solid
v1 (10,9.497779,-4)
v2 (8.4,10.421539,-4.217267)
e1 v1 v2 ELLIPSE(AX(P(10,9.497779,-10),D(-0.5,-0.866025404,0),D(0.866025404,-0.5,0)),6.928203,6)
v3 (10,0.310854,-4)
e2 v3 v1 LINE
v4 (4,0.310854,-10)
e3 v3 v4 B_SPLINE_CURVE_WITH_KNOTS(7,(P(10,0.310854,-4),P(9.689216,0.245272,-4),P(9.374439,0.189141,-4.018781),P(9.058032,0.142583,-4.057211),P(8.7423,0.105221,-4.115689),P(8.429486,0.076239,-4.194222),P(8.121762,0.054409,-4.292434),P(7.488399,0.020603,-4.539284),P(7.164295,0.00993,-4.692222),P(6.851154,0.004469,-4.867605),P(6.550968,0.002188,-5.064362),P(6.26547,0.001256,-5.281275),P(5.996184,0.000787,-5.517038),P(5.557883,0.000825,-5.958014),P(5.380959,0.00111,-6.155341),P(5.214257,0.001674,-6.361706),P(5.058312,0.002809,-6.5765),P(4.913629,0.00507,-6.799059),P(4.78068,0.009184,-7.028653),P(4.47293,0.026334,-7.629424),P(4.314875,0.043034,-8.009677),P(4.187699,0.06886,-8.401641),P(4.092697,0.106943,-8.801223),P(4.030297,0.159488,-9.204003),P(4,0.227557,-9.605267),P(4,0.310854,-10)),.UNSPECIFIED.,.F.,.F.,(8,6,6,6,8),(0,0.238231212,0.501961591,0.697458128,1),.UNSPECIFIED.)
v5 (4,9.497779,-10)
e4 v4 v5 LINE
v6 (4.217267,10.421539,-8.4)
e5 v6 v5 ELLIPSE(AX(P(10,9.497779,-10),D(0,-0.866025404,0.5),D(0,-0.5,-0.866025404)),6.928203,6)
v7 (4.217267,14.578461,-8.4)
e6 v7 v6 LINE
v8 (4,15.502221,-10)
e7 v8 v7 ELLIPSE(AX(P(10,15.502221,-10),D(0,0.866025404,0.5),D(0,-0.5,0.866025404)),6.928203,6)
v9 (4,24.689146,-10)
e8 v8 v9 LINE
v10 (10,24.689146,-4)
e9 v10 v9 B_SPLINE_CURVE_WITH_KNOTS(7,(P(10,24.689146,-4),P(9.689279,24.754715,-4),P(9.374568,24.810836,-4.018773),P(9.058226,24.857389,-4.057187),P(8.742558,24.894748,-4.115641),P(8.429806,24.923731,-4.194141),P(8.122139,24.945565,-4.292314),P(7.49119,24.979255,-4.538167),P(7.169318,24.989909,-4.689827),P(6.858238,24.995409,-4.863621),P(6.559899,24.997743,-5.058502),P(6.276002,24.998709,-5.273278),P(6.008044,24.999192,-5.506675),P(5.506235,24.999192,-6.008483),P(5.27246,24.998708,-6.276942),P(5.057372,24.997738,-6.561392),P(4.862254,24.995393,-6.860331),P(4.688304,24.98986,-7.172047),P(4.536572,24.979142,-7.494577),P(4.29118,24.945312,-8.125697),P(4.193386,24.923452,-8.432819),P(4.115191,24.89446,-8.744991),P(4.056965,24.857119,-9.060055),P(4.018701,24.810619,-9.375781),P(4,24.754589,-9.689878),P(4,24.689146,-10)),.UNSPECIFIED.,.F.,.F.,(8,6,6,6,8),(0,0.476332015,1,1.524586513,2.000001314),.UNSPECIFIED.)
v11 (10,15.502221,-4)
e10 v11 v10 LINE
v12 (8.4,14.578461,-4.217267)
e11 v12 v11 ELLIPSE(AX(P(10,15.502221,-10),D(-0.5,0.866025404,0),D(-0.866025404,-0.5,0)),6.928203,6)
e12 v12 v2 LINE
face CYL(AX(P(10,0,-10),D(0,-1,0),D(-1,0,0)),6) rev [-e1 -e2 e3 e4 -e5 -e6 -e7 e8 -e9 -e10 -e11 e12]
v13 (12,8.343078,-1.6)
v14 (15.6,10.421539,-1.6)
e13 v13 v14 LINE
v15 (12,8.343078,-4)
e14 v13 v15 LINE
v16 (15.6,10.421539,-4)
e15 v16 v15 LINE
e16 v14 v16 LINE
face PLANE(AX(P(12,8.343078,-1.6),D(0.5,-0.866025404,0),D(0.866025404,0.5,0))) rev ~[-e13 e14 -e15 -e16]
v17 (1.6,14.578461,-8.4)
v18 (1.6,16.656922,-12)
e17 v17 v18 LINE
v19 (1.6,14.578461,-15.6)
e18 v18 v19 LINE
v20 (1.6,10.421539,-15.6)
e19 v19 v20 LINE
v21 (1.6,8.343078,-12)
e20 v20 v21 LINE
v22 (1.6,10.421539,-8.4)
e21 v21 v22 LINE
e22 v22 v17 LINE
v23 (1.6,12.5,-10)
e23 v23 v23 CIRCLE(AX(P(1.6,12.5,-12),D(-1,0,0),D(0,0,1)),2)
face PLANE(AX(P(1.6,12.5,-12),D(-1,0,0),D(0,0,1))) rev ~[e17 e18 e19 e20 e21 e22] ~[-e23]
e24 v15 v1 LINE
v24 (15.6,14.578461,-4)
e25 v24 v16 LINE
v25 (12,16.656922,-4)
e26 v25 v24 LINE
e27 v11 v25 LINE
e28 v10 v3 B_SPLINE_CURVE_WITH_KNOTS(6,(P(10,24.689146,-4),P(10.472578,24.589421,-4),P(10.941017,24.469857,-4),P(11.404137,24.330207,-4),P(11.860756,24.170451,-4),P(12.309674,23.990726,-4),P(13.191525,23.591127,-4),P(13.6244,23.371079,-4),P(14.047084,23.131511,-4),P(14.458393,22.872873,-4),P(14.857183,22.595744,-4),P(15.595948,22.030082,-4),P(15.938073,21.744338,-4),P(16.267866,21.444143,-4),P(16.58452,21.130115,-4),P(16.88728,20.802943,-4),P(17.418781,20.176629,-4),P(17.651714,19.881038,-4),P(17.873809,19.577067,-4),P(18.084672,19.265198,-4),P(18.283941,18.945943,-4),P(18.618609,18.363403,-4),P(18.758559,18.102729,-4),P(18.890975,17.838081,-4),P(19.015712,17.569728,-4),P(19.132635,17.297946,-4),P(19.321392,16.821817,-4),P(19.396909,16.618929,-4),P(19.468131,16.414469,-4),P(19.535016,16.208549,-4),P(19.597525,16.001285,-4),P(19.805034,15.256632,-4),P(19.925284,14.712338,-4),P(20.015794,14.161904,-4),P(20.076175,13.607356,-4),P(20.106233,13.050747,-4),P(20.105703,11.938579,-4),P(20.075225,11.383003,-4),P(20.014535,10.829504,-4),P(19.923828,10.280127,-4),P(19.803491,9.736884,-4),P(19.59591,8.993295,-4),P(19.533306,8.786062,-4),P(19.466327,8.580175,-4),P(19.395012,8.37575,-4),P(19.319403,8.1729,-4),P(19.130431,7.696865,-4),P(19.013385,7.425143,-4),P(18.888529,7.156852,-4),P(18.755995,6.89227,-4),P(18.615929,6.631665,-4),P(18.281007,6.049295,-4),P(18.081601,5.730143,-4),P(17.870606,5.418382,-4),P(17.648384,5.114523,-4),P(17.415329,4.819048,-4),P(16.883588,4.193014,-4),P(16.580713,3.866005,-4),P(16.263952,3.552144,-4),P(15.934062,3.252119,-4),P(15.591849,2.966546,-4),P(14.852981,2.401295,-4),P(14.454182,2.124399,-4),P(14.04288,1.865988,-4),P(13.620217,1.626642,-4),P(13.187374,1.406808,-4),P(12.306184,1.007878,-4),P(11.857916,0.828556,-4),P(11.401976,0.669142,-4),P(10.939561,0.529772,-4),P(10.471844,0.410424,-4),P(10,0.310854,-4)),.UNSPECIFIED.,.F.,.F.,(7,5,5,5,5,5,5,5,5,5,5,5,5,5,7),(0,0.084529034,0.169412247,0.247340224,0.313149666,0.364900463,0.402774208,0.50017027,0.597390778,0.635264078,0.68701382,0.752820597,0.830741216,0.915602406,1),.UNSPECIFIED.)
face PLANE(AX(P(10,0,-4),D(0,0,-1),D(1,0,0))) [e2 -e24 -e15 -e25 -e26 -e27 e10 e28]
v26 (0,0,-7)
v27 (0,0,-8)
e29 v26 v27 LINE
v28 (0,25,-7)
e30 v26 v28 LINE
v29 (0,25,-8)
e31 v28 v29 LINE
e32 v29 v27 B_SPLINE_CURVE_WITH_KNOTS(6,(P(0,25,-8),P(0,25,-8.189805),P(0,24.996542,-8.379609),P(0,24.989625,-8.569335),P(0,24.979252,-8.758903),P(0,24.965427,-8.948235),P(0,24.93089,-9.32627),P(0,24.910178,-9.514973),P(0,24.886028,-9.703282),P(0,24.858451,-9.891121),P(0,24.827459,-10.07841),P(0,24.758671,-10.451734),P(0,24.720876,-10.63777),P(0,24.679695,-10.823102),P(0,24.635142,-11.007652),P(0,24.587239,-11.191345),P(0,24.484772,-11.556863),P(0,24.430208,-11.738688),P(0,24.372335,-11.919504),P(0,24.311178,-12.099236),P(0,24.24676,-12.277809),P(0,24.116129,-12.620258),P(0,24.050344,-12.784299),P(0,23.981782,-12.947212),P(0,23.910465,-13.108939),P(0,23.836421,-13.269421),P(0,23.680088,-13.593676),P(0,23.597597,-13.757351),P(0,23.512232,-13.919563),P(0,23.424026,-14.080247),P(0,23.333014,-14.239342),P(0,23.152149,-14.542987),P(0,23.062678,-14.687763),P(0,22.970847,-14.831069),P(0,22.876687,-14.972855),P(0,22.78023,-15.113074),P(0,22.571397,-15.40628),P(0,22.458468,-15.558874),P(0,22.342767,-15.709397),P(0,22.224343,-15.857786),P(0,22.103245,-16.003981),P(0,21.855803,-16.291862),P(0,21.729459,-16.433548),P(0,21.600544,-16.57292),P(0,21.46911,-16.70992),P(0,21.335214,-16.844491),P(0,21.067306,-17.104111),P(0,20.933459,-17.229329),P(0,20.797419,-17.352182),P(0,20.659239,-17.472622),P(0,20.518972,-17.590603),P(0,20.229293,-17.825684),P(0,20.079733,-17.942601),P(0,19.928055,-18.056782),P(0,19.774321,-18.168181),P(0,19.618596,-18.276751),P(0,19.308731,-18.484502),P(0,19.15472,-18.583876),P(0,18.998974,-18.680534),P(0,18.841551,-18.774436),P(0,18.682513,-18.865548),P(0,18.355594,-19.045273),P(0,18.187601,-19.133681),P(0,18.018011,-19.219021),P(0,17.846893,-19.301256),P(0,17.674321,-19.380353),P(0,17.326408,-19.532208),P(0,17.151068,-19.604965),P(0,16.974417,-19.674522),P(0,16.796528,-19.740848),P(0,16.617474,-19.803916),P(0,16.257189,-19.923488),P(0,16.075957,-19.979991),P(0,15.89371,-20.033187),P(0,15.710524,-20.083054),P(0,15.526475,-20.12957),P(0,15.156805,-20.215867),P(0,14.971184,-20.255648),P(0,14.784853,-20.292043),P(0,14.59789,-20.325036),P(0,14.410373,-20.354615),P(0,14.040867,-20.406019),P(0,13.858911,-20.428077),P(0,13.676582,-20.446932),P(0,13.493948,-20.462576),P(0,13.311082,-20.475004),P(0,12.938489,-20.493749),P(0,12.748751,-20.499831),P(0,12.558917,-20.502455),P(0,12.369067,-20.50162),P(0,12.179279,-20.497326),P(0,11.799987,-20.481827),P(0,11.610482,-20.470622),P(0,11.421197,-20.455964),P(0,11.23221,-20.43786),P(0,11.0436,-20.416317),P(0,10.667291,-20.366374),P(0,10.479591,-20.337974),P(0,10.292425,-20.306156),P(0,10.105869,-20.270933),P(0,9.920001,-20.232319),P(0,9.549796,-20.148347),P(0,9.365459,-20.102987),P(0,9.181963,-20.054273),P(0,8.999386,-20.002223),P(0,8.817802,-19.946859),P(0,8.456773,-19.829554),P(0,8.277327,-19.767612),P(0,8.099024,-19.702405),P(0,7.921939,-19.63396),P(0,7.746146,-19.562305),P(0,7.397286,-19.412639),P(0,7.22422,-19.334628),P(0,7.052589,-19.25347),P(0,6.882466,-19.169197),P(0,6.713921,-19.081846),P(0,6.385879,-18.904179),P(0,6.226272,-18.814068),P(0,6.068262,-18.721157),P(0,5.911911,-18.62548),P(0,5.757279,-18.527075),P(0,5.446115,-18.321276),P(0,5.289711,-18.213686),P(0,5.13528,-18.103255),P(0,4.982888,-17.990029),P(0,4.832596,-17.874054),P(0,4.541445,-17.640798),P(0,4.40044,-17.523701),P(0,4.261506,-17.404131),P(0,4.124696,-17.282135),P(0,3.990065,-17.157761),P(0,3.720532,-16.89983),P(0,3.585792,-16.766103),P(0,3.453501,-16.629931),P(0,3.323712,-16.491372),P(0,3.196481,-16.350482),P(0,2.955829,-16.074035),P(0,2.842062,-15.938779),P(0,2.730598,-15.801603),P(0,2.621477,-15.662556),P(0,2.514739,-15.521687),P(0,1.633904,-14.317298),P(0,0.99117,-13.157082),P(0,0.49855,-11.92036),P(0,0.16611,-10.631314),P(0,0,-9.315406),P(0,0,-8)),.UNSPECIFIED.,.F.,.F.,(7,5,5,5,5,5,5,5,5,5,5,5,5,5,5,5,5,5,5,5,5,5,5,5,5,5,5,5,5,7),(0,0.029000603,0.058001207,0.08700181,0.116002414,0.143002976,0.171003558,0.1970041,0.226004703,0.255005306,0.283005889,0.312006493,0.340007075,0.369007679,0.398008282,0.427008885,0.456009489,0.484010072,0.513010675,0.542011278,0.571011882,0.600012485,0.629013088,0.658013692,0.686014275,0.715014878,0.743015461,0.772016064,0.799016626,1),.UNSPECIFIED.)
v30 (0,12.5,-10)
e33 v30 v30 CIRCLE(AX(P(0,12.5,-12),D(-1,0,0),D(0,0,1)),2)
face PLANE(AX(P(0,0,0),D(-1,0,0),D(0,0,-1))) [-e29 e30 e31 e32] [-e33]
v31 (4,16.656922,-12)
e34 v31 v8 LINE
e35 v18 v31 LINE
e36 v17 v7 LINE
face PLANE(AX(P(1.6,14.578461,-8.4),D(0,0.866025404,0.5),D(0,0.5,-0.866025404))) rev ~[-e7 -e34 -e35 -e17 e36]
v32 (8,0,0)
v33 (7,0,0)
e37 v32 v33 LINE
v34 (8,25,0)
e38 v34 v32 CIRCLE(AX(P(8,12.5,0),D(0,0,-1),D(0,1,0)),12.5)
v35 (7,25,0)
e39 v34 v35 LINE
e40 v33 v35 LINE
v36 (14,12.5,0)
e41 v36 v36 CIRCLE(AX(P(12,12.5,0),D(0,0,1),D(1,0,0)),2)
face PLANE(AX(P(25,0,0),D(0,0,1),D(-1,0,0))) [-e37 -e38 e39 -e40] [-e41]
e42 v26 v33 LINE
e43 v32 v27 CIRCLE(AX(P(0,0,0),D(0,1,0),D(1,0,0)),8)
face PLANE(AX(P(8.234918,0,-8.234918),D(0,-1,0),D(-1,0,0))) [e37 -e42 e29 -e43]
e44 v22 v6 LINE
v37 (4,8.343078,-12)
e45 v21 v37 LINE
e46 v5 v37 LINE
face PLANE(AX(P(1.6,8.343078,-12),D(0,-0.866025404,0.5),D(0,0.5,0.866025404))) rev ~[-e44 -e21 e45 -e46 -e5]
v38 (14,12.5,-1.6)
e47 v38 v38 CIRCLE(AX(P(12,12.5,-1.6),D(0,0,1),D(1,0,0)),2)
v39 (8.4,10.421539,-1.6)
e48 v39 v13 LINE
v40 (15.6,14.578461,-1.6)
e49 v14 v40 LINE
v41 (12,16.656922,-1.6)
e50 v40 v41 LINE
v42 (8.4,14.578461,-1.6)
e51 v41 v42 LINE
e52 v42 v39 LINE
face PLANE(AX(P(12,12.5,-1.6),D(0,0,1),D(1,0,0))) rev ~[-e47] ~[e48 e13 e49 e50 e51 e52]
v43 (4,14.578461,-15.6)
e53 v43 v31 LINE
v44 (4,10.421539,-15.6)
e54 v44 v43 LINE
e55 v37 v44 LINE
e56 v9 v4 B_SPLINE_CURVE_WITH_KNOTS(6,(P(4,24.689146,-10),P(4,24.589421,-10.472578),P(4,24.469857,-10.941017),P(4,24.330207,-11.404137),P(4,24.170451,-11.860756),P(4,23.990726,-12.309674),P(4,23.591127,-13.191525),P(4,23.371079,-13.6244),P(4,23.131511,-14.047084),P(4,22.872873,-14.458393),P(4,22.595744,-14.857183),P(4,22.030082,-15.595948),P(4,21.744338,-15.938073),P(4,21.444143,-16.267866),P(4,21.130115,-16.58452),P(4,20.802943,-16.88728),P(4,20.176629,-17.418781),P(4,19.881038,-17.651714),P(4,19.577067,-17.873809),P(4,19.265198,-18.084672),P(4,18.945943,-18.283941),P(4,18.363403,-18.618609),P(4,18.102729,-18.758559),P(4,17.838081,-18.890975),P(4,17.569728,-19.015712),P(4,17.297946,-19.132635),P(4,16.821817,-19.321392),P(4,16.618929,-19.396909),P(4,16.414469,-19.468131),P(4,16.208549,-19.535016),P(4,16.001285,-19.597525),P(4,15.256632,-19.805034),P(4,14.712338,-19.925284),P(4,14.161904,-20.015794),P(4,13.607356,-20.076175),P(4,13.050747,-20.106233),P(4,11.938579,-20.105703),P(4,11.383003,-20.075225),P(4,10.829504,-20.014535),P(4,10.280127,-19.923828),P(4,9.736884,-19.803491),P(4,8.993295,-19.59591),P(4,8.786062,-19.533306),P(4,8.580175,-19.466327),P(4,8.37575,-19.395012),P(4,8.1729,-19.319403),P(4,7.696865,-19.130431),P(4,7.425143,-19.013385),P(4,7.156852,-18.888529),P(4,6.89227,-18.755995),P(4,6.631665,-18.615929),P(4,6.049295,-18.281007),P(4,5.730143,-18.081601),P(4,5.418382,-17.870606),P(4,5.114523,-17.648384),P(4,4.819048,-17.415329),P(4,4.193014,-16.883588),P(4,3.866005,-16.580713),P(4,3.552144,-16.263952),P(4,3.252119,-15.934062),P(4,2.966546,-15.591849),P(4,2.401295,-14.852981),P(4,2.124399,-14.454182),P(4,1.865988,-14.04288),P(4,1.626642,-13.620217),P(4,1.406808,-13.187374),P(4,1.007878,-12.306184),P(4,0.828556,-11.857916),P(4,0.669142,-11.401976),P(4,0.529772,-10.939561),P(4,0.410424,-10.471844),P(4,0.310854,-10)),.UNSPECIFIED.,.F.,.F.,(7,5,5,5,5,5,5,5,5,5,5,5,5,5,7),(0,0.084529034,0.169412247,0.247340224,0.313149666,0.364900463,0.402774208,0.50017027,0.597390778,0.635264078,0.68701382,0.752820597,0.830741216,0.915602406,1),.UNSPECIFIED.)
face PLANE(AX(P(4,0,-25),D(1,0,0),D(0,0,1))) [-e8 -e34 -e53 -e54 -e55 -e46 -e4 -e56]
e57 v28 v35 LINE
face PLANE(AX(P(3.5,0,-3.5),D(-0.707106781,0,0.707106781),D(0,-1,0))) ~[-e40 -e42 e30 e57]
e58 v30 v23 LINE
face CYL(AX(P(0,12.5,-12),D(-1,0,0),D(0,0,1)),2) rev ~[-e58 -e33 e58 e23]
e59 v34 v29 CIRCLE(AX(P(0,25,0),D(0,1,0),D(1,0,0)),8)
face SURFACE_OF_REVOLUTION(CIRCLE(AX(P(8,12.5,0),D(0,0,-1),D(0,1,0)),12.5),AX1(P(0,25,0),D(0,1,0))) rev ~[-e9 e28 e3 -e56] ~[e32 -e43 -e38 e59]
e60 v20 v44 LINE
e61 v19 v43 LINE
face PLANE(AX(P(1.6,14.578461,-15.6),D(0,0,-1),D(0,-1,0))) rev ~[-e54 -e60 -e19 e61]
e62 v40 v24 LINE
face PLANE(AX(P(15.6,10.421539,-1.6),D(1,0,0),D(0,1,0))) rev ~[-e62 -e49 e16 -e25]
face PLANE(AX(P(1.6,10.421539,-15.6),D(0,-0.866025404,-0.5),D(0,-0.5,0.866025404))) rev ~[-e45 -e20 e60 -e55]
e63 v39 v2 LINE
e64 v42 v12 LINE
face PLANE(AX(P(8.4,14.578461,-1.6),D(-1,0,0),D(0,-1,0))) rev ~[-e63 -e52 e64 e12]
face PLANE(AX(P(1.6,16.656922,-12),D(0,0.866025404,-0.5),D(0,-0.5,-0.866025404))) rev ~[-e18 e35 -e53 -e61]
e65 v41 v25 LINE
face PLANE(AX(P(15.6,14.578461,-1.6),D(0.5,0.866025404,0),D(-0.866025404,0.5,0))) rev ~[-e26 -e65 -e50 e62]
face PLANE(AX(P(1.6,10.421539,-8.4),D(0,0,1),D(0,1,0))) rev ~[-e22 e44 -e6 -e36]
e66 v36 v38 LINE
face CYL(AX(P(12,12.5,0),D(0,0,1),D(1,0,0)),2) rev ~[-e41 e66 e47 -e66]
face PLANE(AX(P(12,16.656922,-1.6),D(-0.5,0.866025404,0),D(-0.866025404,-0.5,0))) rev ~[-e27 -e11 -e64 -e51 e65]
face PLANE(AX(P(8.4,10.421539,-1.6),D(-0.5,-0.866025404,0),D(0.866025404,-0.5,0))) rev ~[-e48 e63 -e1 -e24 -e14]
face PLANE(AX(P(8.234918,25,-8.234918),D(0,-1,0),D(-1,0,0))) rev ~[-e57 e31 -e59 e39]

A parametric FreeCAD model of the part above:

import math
import FreeCAD as App
import Part
import Sketcher
from FreeCAD import Vector
Q = App.Units.Quantity


def edges_at(feature, points):
    """Names of the edges that pass closest to the given points."""
    edges = feature.Shape.Edges
    near = lambda p: min(range(len(edges)), key=lambda i: edges[i].distToShape(Part.Vertex(*p))[0])
    return sorted({f"Edge{near(p) + 1}" for p in points})


def add_polygon(sketch, points):
    """Adds a closed chain of lines whose ends are joined by coincident constraints."""
    first, n = sketch.GeometryCount, len(points)
    for a, b in zip(points, points[1:] + points[:1]):
        sketch.addGeometry(Part.LineSegment(App.Vector(*a, 0), App.Vector(*b, 0)), False)
    for i in range(n):
        sketch.addConstraint(Sketcher.Constraint("Coincident", first + i, 2, first + (i + 1) % n, 1))

doc = App.newDocument("Part")
params = doc.addObject("Spreadsheet::Sheet", "Params")
for row, (alias, value) in enumerate([
    ("sketch1_radius", "6 mm"),
    ("sketch1_width", "25 mm"),
    ("sketch1_width2", "15 mm"),
    ("pad1_length", "25 mm"),
    ("sketch2_radius", "12.5 mm"),
    ("sketch2_width", "8 mm"),
    ("groove_angle", "360 deg"),
    ("sketch3_diameter", "4 mm"),
    ("sketch4_diameter", "4 mm"),
    ("chamfer_size", "7 mm"),
], start=1):
    params.set(f"A{row}", alias)
    params.set(f"B{row}", "=" + value)
    params.setAlias(f"B{row}", alias)

body = doc.addObject("PartDesign::Body", "Body")

sketch1 = body.newObject("Sketcher::SketchObject", "Sketch")
sketch1.AttachmentSupport = (doc.getObject("XZ_Plane"), [""])
sketch1.MapMode = "FlatFace"
sketch1.addGeometry([
    Part.LineSegment(Vector(0, -25, 0), Vector(0, 0, 0)),
    Part.LineSegment(Vector(0, 0, 0), Vector(25, 0, 0)),
    Part.LineSegment(Vector(25, 0, 0), Vector(25, -4, 0)),
    Part.LineSegment(Vector(25, -4, 0), Vector(10, -4, 0)),
    Part.ArcOfCircle(Part.Circle(Vector(10, -10, 0), Vector(0, 0, 1), 6), math.radians(90), math.radians(180)),
    Part.LineSegment(Vector(4, -10, 0), Vector(4, -25, 0)),
    Part.LineSegment(Vector(4, -25, 0), Vector(0, -25, 0)),
], False)
sketch1.addConstraint([
    Sketcher.Constraint("Coincident", 0, 2, 1, 1),
    Sketcher.Constraint("Coincident", 1, 2, 2, 1),
    Sketcher.Constraint("Coincident", 2, 2, 3, 1),
    Sketcher.Constraint("Tangent", 3, 2, 4, 1),
    Sketcher.Constraint("Tangent", 4, 2, 5, 1),
    Sketcher.Constraint("Coincident", 5, 2, 6, 1),
    Sketcher.Constraint("Coincident", 6, 2, 0, 1),
    Sketcher.Constraint("Vertical", 0),
    Sketcher.Constraint("Horizontal", 1),
    Sketcher.Constraint("Vertical", 2),
    Sketcher.Constraint("Horizontal", 3),
    Sketcher.Constraint("Vertical", 5),
    Sketcher.Constraint("Horizontal", 6),
    Sketcher.Constraint("Coincident", 0, 2, -1, 1),
    Sketcher.Constraint("Equal", 1, 0),
    Sketcher.Constraint("Equal", 6, 2),
    Sketcher.Constraint("Radius", 4, 6.0),
    Sketcher.Constraint("DistanceX", 1, 1, 1, 2, 25.0),
    Sketcher.Constraint("DistanceX", 3, 2, 3, 1, 15.0),
])
sketch1.setExpression("Constraints[16]", "Params.sketch1_radius")
sketch1.setExpression("Constraints[17]", "Params.sketch1_width")
sketch1.setExpression("Constraints[18]", "Params.sketch1_width2")
pad1 = body.newObject("PartDesign::Pad", "Pad")
pad1.Profile = sketch1
pad1.setExpression("Length", "Params.pad1_length")
pad1.Reversed = True

sketch2 = body.newObject("Sketcher::SketchObject", "Sketch001")
sketch2.AttachmentSupport = (doc.getObject("XY_Plane"), [""])
sketch2.MapMode = "FlatFace"
sketch2.addGeometry([
    Part.LineSegment(Vector(8, 0, 0), Vector(0, 0, 0)),
    Part.LineSegment(Vector(0, 0, 0), Vector(0, -0.947269, 0)),
    Part.LineSegment(Vector(0, -0.947269, 0), Vector(27.823952, -0.947269, 0)),
    Part.LineSegment(Vector(27.823952, -0.947269, 0), Vector(27.823952, 28.581077, 0)),
    Part.LineSegment(Vector(27.823952, 28.581077, 0), Vector(0, 28.581077, 0)),
    Part.LineSegment(Vector(0, 28.581077, 0), Vector(0, 25, 0)),
    Part.LineSegment(Vector(0, 25, 0), Vector(8, 25, 0)),
    Part.ArcOfCircle(Part.Circle(Vector(8, 12.5, 0), Vector(0, 0, 1), 12.5), math.radians(-90), math.radians(90)),
], False)
sketch2.addConstraint([
    Sketcher.Constraint("Coincident", 0, 2, 1, 1),
    Sketcher.Constraint("Coincident", 1, 2, 2, 1),
    Sketcher.Constraint("Coincident", 2, 2, 3, 1),
    Sketcher.Constraint("Coincident", 3, 2, 4, 1),
    Sketcher.Constraint("Coincident", 4, 2, 5, 1),
    Sketcher.Constraint("Coincident", 5, 2, 6, 1),
    Sketcher.Constraint("Tangent", 6, 2, 7, 2),
    Sketcher.Constraint("Tangent", 7, 1, 0, 1),
    Sketcher.Constraint("Horizontal", 0),
    Sketcher.Constraint("Vertical", 1),
    Sketcher.Constraint("Horizontal", 2),
    Sketcher.Constraint("Vertical", 3),
    Sketcher.Constraint("Horizontal", 4),
    Sketcher.Constraint("Vertical", 5),
    Sketcher.Constraint("Horizontal", 6),
    Sketcher.Constraint("Coincident", 0, 2, -1, 1),
    Sketcher.Constraint("PointOnObject", 4, 2, -2),
    Sketcher.Constraint("Radius", 7, 12.5),
    Sketcher.Constraint("DistanceX", 0, 2, 0, 1, 8.0),
    Sketcher.Constraint("DistanceY", 1, 2, 1, 1, 0.947269),
    Sketcher.Constraint("DistanceX", 2, 1, 2, 2, 27.823952),
    Sketcher.Constraint("DistanceY", 3, 1, 3, 2, 29.528347),
])
sketch2.setExpression("Constraints[17]", "Params.sketch2_radius")
sketch2.setExpression("Constraints[18]", "Params.sketch2_width")
groove = body.newObject("PartDesign::Groove", "Groove")
groove.Profile = sketch2
groove.ReferenceAxis = (sketch2, ["V_Axis"])
groove.setExpression("Angle", "Params.groove_angle")

sketch3 = body.newObject("Sketcher::SketchObject", "Sketch002")
sketch3.AttachmentSupport = (doc.getObject("XY_Plane"), [""])
sketch3.MapMode = "FlatFace"
sketch3.addGeometry(Part.Circle(Vector(12, 12.5, 0), Vector(0, 0, 1), 2), False)
sketch3.addConstraint([
    Sketcher.Constraint("Diameter", 0, 4.0),
    Sketcher.Constraint("DistanceX", -1, 1, 0, 3, 12.0),
    Sketcher.Constraint("DistanceY", -1, 1, 0, 3, 12.5),
])
sketch3.setExpression("Constraints[0]", "Params.sketch3_diameter")
pocket1 = body.newObject("PartDesign::Pocket", "Pocket")
pocket1.Profile = sketch3
pocket1.Type = "ThroughAll"

sketch4 = body.newObject("Sketcher::SketchObject", "Sketch003")
sketch4.AttachmentSupport = (doc.getObject("YZ_Plane"), [""])
sketch4.MapMode = "FlatFace"
sketch4.addGeometry(Part.Circle(Vector(12.5, -12, 0), Vector(0, 0, 1), 2), False)
sketch4.addConstraint([
    Sketcher.Constraint("Diameter", 0, 4.0),
    Sketcher.Constraint("DistanceY", 0, 3, -1, 1, 12.0),
    Sketcher.Constraint("DistanceX", -1, 1, 0, 3, 12.5),
])
sketch4.setExpression("Constraints[0]", "Params.sketch4_diameter")
pocket2 = body.newObject("PartDesign::Pocket", "Pocket001")
pocket2.Profile = sketch4
pocket2.Type = "ThroughAll"
pocket2.Reversed = True

sketch5 = body.newObject("Sketcher::SketchObject", "Sketch004")
sketch5.AttachmentSupport = (doc.getObject("YZ_Plane"), [""])
sketch5.MapMode = "FlatFace"
sketch5.AttachmentOffset = App.Placement(Vector(0, 0, 1.6), App.Rotation())
add_polygon(sketch5, [(14.578461, -8.4), (16.656922, -12), (14.578461, -15.6), (10.421539, -15.6), (8.343078, -12), (10.421539, -8.4)])
sketch5.addConstraint([
    Sketcher.Constraint("Horizontal", 2),
    Sketcher.Constraint("Horizontal", 5),
    Sketcher.Constraint("Parallel", 0, 3),
    Sketcher.Constraint("Parallel", 1, 4),
    Sketcher.Constraint("Horizontal", 0, 2, 3, 2),
    Sketcher.Constraint("Vertical", 2, 2, 4, 2),
    Sketcher.Constraint("Vertical", 1, 2, 5, 2),
    Sketcher.Constraint("Angle", 0, Q("-60 deg")),
    Sketcher.Constraint("DistanceY", 0, 2, -1, 1, 12.0),
    Sketcher.Constraint("DistanceY", 1, 2, -1, 1, 15.6),
    Sketcher.Constraint("DistanceX", 2, 2, 2, 1, 4.156922),
    Sketcher.Constraint("DistanceX", -1, 1, 0, 2, 16.656922),
])
pocket3 = body.newObject("PartDesign::Pocket", "Pocket002")
pocket3.Profile = sketch5
pocket3.Type = "ThroughAll"
pocket3.Reversed = True

sketch6 = body.newObject("Sketcher::SketchObject", "Sketch005")
sketch6.AttachmentSupport = (doc.getObject("XY_Plane"), [""])
sketch6.MapMode = "FlatFace"
sketch6.AttachmentOffset = App.Placement(Vector(0, 0, -1.6), App.Rotation())
add_polygon(sketch6, [(12, 8.343078), (15.6, 10.421539), (15.6, 14.578461), (12, 16.656922), (8.4, 14.578461), (8.4, 10.421539)])
sketch6.addConstraint([
    Sketcher.Constraint("Vertical", 1),
    Sketcher.Constraint("Vertical", 4),
    Sketcher.Constraint("Parallel", 0, 3),
    Sketcher.Constraint("Parallel", 2, 5),
    Sketcher.Constraint("Horizontal", 1, 2, 3, 2),
    Sketcher.Constraint("Horizontal", 0, 2, 4, 2),
    Sketcher.Constraint("Vertical", 2, 2, 5, 2),
    Sketcher.Constraint("Angle", 0, Q("30 deg")),
    Sketcher.Constraint("DistanceX", -1, 1, 2, 2, 12.0),
    Sketcher.Constraint("DistanceX", -1, 1, 0, 2, 15.6),
    Sketcher.Constraint("DistanceY", 1, 1, 1, 2, 4.156922),
    Sketcher.Constraint("DistanceY", -1, 1, 0, 2, 10.421539),
])
pocket4 = body.newObject("PartDesign::Pocket", "Pocket003")
pocket4.Profile = sketch6
pocket4.Type = "ThroughAll"
doc.recompute()

chamfer = body.newObject("PartDesign::Chamfer", "Chamfer")
chamfer.Base = (pocket4, edges_at(pocket4, [(0, 12.5, 0)]))
chamfer.setExpression("Size", "Params.chamfer_size")

doc.recompute()
